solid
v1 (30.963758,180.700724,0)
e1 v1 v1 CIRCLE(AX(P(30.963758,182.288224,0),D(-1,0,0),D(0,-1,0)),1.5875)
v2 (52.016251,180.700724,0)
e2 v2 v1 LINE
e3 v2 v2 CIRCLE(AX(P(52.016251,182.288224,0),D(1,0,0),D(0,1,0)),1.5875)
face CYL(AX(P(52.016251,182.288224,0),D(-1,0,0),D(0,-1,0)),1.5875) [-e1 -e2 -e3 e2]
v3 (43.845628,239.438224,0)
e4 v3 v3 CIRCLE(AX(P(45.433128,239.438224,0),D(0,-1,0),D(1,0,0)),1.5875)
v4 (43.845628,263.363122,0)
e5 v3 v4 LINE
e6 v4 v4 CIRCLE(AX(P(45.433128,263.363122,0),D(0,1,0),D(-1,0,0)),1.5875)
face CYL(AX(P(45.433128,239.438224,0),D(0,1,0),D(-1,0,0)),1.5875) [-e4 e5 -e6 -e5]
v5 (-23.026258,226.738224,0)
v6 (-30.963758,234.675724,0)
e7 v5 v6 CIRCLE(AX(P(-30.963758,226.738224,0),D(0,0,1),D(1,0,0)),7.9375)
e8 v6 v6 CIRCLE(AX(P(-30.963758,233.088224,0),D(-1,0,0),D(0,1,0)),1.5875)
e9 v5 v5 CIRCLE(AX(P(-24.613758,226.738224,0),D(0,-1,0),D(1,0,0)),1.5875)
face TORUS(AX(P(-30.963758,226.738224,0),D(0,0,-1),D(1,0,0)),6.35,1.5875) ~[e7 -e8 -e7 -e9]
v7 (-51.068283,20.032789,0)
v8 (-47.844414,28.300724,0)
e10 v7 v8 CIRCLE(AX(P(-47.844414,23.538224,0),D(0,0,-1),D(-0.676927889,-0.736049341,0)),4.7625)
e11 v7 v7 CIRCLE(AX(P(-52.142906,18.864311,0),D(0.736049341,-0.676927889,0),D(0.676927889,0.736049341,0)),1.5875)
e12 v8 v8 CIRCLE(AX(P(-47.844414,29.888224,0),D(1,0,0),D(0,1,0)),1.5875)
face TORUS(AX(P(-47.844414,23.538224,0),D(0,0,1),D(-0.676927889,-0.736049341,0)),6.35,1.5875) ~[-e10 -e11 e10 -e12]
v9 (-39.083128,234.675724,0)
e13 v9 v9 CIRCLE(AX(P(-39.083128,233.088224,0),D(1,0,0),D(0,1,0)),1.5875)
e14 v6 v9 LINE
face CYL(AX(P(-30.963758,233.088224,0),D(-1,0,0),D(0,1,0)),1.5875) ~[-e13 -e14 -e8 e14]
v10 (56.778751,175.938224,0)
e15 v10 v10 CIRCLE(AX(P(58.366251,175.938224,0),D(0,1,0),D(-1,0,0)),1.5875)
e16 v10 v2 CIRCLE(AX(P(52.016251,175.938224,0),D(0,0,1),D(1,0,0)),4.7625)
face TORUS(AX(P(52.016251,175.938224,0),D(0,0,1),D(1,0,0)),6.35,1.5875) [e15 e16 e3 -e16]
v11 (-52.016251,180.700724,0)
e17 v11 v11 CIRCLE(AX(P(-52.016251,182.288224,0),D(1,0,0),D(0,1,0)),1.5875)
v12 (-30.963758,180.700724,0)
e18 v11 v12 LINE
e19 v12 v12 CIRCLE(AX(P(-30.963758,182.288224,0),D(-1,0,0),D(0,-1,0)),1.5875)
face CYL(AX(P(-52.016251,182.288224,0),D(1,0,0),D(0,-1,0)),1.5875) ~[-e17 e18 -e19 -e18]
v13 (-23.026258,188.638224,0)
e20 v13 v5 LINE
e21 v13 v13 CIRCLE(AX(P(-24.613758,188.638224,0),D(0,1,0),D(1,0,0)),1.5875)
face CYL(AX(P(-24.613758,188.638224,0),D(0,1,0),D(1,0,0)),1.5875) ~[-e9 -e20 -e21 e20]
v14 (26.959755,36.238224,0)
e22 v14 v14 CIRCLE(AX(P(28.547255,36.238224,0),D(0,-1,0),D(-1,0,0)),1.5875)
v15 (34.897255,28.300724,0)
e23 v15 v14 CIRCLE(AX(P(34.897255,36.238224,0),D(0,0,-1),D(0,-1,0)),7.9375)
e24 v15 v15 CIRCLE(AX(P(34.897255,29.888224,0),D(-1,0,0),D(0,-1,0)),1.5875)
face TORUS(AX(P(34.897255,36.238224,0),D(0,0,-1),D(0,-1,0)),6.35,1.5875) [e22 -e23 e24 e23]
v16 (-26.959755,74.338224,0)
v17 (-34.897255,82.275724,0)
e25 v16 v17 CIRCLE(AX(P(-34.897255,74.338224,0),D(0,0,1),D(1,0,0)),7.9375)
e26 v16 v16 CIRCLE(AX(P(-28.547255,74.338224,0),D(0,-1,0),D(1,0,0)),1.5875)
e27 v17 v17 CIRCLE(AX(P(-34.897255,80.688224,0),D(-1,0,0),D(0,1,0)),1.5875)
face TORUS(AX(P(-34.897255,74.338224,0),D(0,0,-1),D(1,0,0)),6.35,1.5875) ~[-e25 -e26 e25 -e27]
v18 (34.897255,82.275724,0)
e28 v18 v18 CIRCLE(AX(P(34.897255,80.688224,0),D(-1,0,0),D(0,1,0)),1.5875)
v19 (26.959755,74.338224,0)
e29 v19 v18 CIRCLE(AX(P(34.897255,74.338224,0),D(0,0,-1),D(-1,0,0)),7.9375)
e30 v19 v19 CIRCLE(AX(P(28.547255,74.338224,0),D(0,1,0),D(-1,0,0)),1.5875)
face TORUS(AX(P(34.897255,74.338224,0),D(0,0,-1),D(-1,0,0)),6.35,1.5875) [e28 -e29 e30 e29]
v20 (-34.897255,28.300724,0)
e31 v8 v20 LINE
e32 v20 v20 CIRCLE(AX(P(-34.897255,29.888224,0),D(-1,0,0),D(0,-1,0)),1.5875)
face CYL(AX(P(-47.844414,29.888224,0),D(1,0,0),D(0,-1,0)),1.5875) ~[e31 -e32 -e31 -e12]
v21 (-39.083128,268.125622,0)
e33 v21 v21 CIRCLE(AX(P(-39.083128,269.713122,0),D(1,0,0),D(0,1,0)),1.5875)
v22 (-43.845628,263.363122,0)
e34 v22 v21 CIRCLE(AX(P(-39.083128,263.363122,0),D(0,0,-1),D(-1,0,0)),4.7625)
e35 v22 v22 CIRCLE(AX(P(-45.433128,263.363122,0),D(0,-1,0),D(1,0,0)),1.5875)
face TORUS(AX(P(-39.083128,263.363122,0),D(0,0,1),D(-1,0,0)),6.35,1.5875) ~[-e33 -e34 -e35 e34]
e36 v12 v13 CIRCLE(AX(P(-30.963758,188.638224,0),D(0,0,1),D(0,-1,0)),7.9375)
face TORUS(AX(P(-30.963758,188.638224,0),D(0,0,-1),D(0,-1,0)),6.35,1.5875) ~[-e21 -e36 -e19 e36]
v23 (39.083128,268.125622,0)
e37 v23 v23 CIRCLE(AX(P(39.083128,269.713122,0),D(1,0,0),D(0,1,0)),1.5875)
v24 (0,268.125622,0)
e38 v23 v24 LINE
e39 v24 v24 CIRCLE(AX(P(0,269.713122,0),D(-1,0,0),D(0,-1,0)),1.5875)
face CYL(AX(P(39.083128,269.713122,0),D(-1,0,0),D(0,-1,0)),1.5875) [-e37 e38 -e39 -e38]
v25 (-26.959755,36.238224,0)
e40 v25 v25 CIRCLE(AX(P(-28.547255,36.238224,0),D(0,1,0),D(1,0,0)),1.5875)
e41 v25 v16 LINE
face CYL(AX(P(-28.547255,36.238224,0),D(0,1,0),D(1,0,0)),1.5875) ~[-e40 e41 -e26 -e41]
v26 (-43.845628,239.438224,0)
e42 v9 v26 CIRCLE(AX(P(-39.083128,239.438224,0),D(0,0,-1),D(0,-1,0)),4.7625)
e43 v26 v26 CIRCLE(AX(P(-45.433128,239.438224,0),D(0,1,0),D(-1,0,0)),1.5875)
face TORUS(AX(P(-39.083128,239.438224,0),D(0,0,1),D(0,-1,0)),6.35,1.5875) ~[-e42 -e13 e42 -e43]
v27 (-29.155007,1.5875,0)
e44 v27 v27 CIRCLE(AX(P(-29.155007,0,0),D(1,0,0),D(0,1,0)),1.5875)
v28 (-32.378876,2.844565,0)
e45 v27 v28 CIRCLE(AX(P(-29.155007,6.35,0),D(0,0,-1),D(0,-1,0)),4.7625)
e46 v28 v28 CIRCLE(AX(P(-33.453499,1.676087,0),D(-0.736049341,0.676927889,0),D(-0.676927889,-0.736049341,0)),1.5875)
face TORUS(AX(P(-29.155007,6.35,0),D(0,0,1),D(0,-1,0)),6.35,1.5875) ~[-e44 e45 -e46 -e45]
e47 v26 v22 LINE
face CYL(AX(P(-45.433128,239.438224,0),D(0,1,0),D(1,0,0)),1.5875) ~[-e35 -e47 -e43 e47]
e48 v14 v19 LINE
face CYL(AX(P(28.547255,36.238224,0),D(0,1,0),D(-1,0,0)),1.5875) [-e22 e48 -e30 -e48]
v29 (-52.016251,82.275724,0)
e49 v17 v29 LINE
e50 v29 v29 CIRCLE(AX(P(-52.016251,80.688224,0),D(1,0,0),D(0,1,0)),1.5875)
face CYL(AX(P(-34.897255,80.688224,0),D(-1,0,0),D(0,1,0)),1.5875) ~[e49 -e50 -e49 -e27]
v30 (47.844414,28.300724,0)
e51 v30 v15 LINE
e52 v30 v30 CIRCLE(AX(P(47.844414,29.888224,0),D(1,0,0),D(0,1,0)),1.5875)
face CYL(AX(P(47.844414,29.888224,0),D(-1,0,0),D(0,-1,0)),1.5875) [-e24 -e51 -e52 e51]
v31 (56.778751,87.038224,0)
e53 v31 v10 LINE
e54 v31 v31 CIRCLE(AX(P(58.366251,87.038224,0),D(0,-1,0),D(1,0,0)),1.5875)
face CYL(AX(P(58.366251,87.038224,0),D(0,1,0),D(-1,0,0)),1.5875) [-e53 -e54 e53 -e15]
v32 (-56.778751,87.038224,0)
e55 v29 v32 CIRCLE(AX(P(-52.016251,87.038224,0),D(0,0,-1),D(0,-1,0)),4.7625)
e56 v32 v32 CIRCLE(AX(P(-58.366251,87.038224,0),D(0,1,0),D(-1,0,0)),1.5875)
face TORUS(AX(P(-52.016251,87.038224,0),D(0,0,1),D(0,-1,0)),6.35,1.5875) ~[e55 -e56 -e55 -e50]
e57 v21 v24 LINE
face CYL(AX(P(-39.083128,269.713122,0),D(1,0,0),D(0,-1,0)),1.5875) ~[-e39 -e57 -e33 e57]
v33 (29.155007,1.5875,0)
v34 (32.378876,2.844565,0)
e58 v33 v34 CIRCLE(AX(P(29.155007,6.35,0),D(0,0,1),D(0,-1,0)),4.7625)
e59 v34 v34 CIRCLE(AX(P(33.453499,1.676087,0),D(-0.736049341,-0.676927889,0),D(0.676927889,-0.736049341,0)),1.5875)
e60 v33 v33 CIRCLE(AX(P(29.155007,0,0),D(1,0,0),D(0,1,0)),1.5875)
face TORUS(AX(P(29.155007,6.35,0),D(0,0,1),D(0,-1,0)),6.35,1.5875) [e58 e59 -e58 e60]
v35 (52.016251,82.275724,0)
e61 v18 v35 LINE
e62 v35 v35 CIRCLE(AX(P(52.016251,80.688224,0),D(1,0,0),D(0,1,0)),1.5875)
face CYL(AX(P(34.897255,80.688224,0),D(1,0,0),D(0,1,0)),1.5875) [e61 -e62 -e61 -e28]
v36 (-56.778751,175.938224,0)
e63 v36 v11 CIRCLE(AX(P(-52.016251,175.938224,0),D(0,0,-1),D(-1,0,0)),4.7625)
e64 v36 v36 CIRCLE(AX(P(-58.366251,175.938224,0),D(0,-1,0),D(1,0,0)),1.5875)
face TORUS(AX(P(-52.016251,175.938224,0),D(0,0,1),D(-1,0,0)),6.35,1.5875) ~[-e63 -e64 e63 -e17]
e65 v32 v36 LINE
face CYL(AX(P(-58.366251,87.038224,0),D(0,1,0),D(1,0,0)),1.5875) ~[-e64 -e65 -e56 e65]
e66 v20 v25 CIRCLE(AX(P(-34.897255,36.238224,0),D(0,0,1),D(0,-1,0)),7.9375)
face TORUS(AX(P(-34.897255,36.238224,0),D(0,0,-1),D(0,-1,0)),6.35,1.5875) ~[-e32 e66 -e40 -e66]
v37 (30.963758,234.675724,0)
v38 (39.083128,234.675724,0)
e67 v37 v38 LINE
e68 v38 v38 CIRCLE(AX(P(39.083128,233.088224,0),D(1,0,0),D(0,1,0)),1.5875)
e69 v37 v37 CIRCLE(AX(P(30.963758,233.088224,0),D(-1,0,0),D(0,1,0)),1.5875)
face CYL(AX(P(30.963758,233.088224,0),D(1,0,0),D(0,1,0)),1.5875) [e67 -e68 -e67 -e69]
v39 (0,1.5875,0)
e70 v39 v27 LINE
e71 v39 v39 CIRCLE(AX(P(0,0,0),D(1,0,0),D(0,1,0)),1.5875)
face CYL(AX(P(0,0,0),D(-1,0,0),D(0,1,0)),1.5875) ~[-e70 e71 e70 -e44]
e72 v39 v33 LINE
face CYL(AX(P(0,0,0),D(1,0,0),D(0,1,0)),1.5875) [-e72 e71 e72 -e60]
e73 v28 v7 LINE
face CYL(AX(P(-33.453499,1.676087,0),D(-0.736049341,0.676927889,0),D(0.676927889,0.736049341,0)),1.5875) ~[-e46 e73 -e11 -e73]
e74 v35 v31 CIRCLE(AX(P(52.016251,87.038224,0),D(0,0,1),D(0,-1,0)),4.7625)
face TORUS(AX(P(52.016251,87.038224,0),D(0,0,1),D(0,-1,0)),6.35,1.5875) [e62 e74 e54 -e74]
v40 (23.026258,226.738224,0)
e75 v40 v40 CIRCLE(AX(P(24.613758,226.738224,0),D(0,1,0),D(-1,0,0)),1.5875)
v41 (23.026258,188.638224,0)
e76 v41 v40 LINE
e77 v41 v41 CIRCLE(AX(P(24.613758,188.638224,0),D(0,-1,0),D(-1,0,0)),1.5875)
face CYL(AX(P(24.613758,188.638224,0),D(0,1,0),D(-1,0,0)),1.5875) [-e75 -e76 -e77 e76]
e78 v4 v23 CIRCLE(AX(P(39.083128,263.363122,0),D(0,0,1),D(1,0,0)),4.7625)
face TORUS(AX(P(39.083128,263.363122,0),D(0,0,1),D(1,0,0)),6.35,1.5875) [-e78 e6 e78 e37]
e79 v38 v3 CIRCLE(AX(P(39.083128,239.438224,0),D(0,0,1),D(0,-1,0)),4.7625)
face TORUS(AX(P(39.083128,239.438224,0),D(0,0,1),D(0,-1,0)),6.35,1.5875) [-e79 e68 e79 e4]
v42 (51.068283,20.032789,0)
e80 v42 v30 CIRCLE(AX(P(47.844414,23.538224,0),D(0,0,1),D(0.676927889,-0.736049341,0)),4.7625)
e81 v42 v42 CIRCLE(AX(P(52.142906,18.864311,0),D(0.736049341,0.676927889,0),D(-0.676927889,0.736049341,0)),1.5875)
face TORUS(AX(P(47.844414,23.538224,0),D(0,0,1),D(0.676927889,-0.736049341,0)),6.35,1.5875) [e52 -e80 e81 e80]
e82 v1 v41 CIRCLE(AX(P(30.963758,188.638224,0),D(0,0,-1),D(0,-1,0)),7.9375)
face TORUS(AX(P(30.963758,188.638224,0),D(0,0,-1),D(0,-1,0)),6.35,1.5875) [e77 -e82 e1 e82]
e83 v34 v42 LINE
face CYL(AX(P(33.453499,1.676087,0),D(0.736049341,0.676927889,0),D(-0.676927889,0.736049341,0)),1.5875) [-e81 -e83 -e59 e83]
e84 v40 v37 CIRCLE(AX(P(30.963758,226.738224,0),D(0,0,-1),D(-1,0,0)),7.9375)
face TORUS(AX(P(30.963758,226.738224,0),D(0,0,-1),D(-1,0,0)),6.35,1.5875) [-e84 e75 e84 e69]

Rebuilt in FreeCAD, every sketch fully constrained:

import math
import FreeCAD as App
import Part
import Sketcher
from FreeCAD import Vector
Q = App.Units.Quantity

doc = App.newDocument("Part")
body = doc.addObject("PartDesign::Body", "Body")

# Sketch on YZ plane
sketch1 = body.newObject("Sketcher::SketchObject", "Sketch")
sketch1.AttachmentSupport = (doc.getObject("YZ_Plane"), [""])
sketch1.MapMode = "FlatFace"
sketch1.addGeometry(Part.Circle(Vector(0, 0, 0), Vector(0, 0, 1), 1.6), False)
sketch1.addConstraint(Sketcher.Constraint("Coincident", 0, 3, -1, 1))
sketch1.addConstraint(Sketcher.Constraint("Diameter", 0, Q("0.125 in")))

# Sketch on XY plane
sketch2 = body.newObject("Sketcher::SketchObject", "Sketch001")
sketch2.AttachmentSupport = (doc.getObject("XY_Plane"), [""])
sketch2.MapMode = "FlatFace"
sketch2.addGeometry(Part.LineSegment(Vector(0, 0, 0), Vector(29.2, 0, 0)), False)
sketch2.addGeometry(Part.ArcOfCircle(Part.Circle(Vector(29.2, 6.3, 0), Vector(0, 0, 1), 6.3), math.radians(-90), math.radians(-47)), False)
sketch2.addGeometry(Part.LineSegment(Vector(33.5, 1.7, 0), Vector(52.1, 18.9, 0)), False)
sketch2.addGeometry(Part.ArcOfCircle(Part.Circle(Vector(47.8, 23.5, 0), Vector(0, 0, 1), 6.3), math.radians(-47), math.radians(90)), False)
sketch2.addGeometry(Part.LineSegment(Vector(47.8, 29.9, 0), Vector(34.9, 29.9, 0)), False)
sketch2.addGeometry(Part.ArcOfCircle(Part.Circle(Vector(34.9, 36.2, 0), Vector(0, 0, 1), 6.3), math.radians(180), math.radians(270)), False)
sketch2.addGeometry(Part.LineSegment(Vector(28.5, 36.2, 0), Vector(28.5, 74.3, 0)), False)
sketch2.addGeometry(Part.ArcOfCircle(Part.Circle(Vector(34.9, 74.3, 0), Vector(0, 0, 1), 6.3), math.radians(90), math.radians(180)), False)
sketch2.addGeometry(Part.LineSegment(Vector(34.9, 80.7, 0), Vector(52, 80.7, 0)), False)
sketch2.addGeometry(Part.ArcOfCircle(Part.Circle(Vector(52, 87, 0), Vector(0, 0, 1), 6.3), math.radians(-90), math.radians(0)), False)
sketch2.addGeometry(Part.LineSegment(Vector(58.4, 87, 0), Vector(58.4, 175.9, 0)), False)
sketch2.addGeometry(Part.ArcOfCircle(Part.Circle(Vector(52, 175.9, 0), Vector(0, 0, 1), 6.3), math.radians(0), math.radians(90)), False)
sketch2.addGeometry(Part.LineSegment(Vector(52, 182.3, 0), Vector(31, 182.3, 0)), False)
sketch2.addGeometry(Part.ArcOfCircle(Part.Circle(Vector(31, 188.6, 0), Vector(0, 0, 1), 6.3), math.radians(180), math.radians(270)), False)
sketch2.addGeometry(Part.LineSegment(Vector(24.6, 188.6, 0), Vector(24.6, 226.7, 0)), False)
sketch2.addGeometry(Part.ArcOfCircle(Part.Circle(Vector(31, 226.7, 0), Vector(0, 0, 1), 6.3), math.radians(90), math.radians(180)), False)
sketch2.addGeometry(Part.LineSegment(Vector(31, 233.1, 0), Vector(39.1, 233.1, 0)), False)
sketch2.addGeometry(Part.ArcOfCircle(Part.Circle(Vector(39.1, 239.4, 0), Vector(0, 0, 1), 6.3), math.radians(-90), math.radians(0)), False)
sketch2.addGeometry(Part.LineSegment(Vector(45.4, 239.4, 0), Vector(45.4, 263.4, 0)), False)
sketch2.addGeometry(Part.ArcOfCircle(Part.Circle(Vector(39.1, 263.4, 0), Vector(0, 0, 1), 6.3), math.radians(0), math.radians(90)), False)
sketch2.addGeometry(Part.LineSegment(Vector(39.1, 269.7, 0), Vector(0, 269.7, 0)), False)
sketch2.addConstraint(Sketcher.Constraint("Tangent", 0, 2, 1, 1))
sketch2.addConstraint(Sketcher.Constraint("Tangent", 1, 2, 2, 1))
sketch2.addConstraint(Sketcher.Constraint("Tangent", 2, 2, 3, 1))
sketch2.addConstraint(Sketcher.Constraint("Tangent", 3, 2, 4, 1))
sketch2.addConstraint(Sketcher.Constraint("Tangent", 4, 2, 5, 2))
sketch2.addConstraint(Sketcher.Constraint("Tangent", 5, 1, 6, 1))
sketch2.addConstraint(Sketcher.Constraint("Tangent", 6, 2, 7, 2))
sketch2.addConstraint(Sketcher.Constraint("Tangent", 7, 1, 8, 1))
sketch2.addConstraint(Sketcher.Constraint("Tangent", 8, 2, 9, 1))
sketch2.addConstraint(Sketcher.Constraint("Tangent", 9, 2, 10, 1))
sketch2.addConstraint(Sketcher.Constraint("Tangent", 10, 2, 11, 1))
sketch2.addConstraint(Sketcher.Constraint("Tangent", 11, 2, 12, 1))
sketch2.addConstraint(Sketcher.Constraint("Tangent", 12, 2, 13, 2))
sketch2.addConstraint(Sketcher.Constraint("Tangent", 13, 1, 14, 1))
sketch2.addConstraint(Sketcher.Constraint("Tangent", 14, 2, 15, 2))
sketch2.addConstraint(Sketcher.Constraint("Tangent", 15, 1, 16, 1))
sketch2.addConstraint(Sketcher.Constraint("Tangent", 16, 2, 17, 1))
sketch2.addConstraint(Sketcher.Constraint("Tangent", 17, 2, 18, 1))
sketch2.addConstraint(Sketcher.Constraint("Tangent", 18, 2, 19, 1))
sketch2.addConstraint(Sketcher.Constraint("Tangent", 19, 2, 20, 1))
sketch2.addConstraint(Sketcher.Constraint("Horizontal", 0))
sketch2.addConstraint(Sketcher.Constraint("Horizontal", 4))
sketch2.addConstraint(Sketcher.Constraint("Vertical", 6))
sketch2.addConstraint(Sketcher.Constraint("Horizontal", 8))
sketch2.addConstraint(Sketcher.Constraint("Vertical", 10))
sketch2.addConstraint(Sketcher.Constraint("Horizontal", 12))
sketch2.addConstraint(Sketcher.Constraint("Vertical", 14))
sketch2.addConstraint(Sketcher.Constraint("Horizontal", 16))
sketch2.addConstraint(Sketcher.Constraint("Vertical", 18))
sketch2.addConstraint(Sketcher.Constraint("Horizontal", 20))
sketch2.addConstraint(Sketcher.Constraint("Coincident", 0, 1, -1, 1))
sketch2.addConstraint(Sketcher.Constraint("Equal", 1, 3))
sketch2.addConstraint(Sketcher.Constraint("Equal", 3, 5))
sketch2.addConstraint(Sketcher.Constraint("Equal", 5, 7))
sketch2.addConstraint(Sketcher.Constraint("Equal", 7, 9))
sketch2.addConstraint(Sketcher.Constraint("Equal", 9, 11))
sketch2.addConstraint(Sketcher.Constraint("Equal", 11, 13))
sketch2.addConstraint(Sketcher.Constraint("Equal", 13, 15))
sketch2.addConstraint(Sketcher.Constraint("Equal", 15, 17))
sketch2.addConstraint(Sketcher.Constraint("Equal", 17, 19))
sketch2.addConstraint(Sketcher.Constraint("PointOnObject", 20, 2, -2))
sketch2.addConstraint(Sketcher.Constraint("Equal", 6, 14))
sketch2.addConstraint(Sketcher.Constraint("Radius", 1, Q("0.25 in")))
sketch2.addConstraint(Sketcher.Constraint("DistanceY", 6, 1, 6, 2, Q("1.5 in")))
sketch2.addConstraint(Sketcher.Constraint("DistanceY", 10, 1, 10, 2, Q("3.5 in")))
sketch2.addConstraint(Sketcher.Constraint("DistanceY", 18, 1, 18, 2, Q("23.924898 mm")))
sketch2.addConstraint(Sketcher.Constraint("DistanceX", 4, 2, 4, 1, Q("12.947158 mm")))
sketch2.addConstraint(Sketcher.Constraint("DistanceX", 16, 1, 16, 2, Q("8.11937 mm")))
sketch2.addConstraint(Sketcher.Constraint("DistanceX", -1, 1, 1, 2, Q("33.453499 mm")))
sketch2.addConstraint(Sketcher.Constraint("DistanceX", 1, 3, 2, 2, Q("22.987899 mm")))
sketch2.addConstraint(Sketcher.Constraint("DistanceX", 0, 1, 0, 2, Q("29.155007 mm")))
sketch2.addConstraint(Sketcher.Constraint("DistanceX", 8, 1, 8, 2, Q("17.118995 mm")))
sketch2.addConstraint(Sketcher.Constraint("DistanceX", 12, 2, 12, 1, Q("21.052492 mm")))
doc.recompute()

additivepipe = body.newObject("PartDesign::AdditivePipe", "AdditivePipe")
additivepipe.Profile = sketch1
additivepipe.Spine = (sketch2, ["Edge1", "Edge2", "Edge3", "Edge4", "Edge5", "Edge6", "Edge7", "Edge8", "Edge9", "Edge10", "Edge11", "Edge12", "Edge13", "Edge14", "Edge15", "Edge16", "Edge17", "Edge18", "Edge19", "Edge20", "Edge21"])
body2 = doc.addObject("PartDesign::Body", "Body001")
doc.recompute()

body2.BaseFeature = body
doc.recompute()

mirroring = doc.addObject("Part::Mirroring", "Mirroring")
mirroring.Source = body
mirroring.Base = Vector(0, 0, 0)
mirroring.Normal = Vector(1, 0, 0)
body3 = doc.addObject("PartDesign::Body", "Body002")
body3.BaseFeature = mirroring
boolean = body2.newObject("PartDesign::Boolean", "Boolean")
boolean.Type = "Fuse"
boolean.addObjects([body3])
doc.recompute()
mirroring.Visibility = False

doc.recompute()
